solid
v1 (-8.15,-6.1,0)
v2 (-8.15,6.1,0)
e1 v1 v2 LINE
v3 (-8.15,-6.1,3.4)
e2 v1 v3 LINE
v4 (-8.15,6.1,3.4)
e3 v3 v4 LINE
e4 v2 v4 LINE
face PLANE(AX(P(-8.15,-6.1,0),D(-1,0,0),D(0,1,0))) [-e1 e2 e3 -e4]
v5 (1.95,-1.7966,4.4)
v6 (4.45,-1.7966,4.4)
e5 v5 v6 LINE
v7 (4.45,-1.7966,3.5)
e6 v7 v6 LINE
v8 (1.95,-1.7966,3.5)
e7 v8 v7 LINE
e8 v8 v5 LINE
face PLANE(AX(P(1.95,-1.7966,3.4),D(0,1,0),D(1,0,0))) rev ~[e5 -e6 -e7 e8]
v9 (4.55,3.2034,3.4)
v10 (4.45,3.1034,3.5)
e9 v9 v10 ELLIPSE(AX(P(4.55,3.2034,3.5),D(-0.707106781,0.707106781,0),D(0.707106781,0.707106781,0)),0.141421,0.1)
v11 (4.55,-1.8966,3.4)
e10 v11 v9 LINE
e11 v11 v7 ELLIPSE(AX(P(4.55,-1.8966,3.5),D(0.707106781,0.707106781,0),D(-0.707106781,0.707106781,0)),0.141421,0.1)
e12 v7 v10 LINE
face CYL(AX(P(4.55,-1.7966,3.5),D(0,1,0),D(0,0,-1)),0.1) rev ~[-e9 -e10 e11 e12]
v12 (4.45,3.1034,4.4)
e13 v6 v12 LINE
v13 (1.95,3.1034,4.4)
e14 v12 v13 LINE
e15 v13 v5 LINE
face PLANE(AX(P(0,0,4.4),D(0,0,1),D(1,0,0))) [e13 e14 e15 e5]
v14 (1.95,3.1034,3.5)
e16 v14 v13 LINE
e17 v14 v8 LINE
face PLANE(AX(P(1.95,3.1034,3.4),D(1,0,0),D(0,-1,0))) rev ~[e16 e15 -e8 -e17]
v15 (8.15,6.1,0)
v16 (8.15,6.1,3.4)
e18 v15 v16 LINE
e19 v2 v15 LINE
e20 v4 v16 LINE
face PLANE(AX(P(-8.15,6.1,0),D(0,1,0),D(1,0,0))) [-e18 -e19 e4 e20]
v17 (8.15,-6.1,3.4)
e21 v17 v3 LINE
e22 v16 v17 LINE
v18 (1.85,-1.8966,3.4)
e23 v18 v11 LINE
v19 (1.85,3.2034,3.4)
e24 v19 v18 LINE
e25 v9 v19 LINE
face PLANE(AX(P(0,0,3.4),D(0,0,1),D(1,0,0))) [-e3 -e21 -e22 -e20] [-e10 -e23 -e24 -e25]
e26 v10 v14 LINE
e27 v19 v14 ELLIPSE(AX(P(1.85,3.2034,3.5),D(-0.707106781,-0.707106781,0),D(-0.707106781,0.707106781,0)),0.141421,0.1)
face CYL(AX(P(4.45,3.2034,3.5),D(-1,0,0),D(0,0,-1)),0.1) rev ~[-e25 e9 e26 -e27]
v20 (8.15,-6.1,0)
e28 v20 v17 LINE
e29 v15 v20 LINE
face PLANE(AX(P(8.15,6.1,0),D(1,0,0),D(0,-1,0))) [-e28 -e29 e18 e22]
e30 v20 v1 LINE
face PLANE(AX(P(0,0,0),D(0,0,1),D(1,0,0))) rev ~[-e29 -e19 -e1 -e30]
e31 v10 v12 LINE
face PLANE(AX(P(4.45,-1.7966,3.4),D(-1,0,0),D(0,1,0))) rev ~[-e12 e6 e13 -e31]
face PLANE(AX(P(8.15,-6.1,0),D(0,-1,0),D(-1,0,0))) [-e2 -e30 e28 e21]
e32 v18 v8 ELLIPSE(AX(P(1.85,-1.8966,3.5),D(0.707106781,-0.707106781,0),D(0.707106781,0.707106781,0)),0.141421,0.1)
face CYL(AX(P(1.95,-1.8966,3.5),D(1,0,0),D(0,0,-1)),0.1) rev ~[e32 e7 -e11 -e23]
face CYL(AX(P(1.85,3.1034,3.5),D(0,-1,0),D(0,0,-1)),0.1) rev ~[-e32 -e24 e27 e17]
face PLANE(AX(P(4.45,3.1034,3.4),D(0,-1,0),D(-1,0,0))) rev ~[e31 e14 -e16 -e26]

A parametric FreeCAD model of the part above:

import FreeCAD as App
import Part
import Sketcher

V = App.Vector
Q = App.Units.Quantity


def edges_at(feature, points):
    """Names of the edges that pass closest to the given points."""
    edges = feature.Shape.Edges
    near = lambda p: min(range(len(edges)), key=lambda i: edges[i].distToShape(Part.Vertex(*p))[0])
    return sorted({f"Edge{near(p) + 1}" for p in points})

doc = App.newDocument("Part")
body = doc.addObject("PartDesign::Body", "Body")

# Sketch on XY plane
sketch1 = doc.addObject("Sketcher::SketchObject", "Sketch")
body.addObject(sketch1)
sketch1.AttachmentSupport = (doc.XY_Plane, [""])
sketch1.MapMode = "FlatFace"
sketch1.addGeometry([
    Part.LineSegment(V(-8, -6, 0), V(8, -6, 0)),
    Part.LineSegment(V(8, -6, 0), V(8, 6, 0)),
    Part.LineSegment(V(8, 6, 0), V(-8, 6, 0)),
    Part.LineSegment(V(-8, 6, 0), V(-8, -6, 0)),
], False)
sketch1.addConstraint([
    Sketcher.Constraint("Coincident", 0, 2, 1, 1),
    Sketcher.Constraint("Coincident", 1, 2, 2, 1),
    Sketcher.Constraint("Coincident", 2, 2, 3, 1),
    Sketcher.Constraint("Coincident", 3, 2, 0, 1),
    Sketcher.Constraint("Horizontal", 0),
    Sketcher.Constraint("Vertical", 1),
    Sketcher.Constraint("Horizontal", 2),
    Sketcher.Constraint("Vertical", 3),
    Sketcher.Constraint("Symmetric", 0, 2, 2, 2, -1, 1),
    Sketcher.Constraint("DistanceX", 0, 1, 0, 2, Q("16.3 mm")),
    Sketcher.Constraint("DistanceY", 1, 1, 1, 2, Q("12.2 mm")),
])
pad1 = doc.addObject("PartDesign::Pad", "Pad")
body.addObject(pad1)
pad1.Profile = sketch1
pad1.Length = 3.4

# Sketch on XY plane
sketch2 = doc.addObject("Sketcher::SketchObject", "Sketch001")
body.addObject(sketch2)
sketch2.AttachmentSupport = (doc.XY_Plane, [""])
sketch2.MapMode = "FlatFace"
sketch2.AttachmentOffset = App.Placement(V(0, 0, 3.4), App.Rotation())
sketch2.addGeometry([
    Part.LineSegment(V(4.5, -1.8, 0), V(4.5, 3.1, 0)),
    Part.LineSegment(V(4.5, 3.1, 0), V(1.9, 3.1, 0)),
    Part.LineSegment(V(1.9, 3.1, 0), V(1.9, -1.8, 0)),
    Part.LineSegment(V(1.9, -1.8, 0), V(4.5, -1.8, 0)),
], False)
sketch2.addConstraint([
    Sketcher.Constraint("Coincident", 0, 2, 1, 1),
    Sketcher.Constraint("Coincident", 1, 2, 2, 1),
    Sketcher.Constraint("Coincident", 2, 2, 3, 1),
    Sketcher.Constraint("Coincident", 3, 2, 0, 1),
    Sketcher.Constraint("Vertical", 0),
    Sketcher.Constraint("Horizontal", 1),
    Sketcher.Constraint("Vertical", 2),
    Sketcher.Constraint("Horizontal", 3),
    Sketcher.Constraint("DistanceX", 1, 2, 1, 1, Q("2.5 mm")),
    Sketcher.Constraint("DistanceY", 0, 1, 0, 2, Q("4.9 mm")),
    Sketcher.Constraint("DistanceX", -1, 1, 0, 2, Q("4.45 mm")),
    Sketcher.Constraint("DistanceY", -1, 1, 0, 2, Q("3.1034 mm")),
])
pad2 = doc.addObject("PartDesign::Pad", "Pad001")
body.addObject(pad2)
pad2.Profile = sketch2
pad2.Length = 1
doc.recompute()

fillet = doc.addObject("PartDesign::Fillet", "Fillet")
body.addObject(fillet)
fillet.Base = (pad2, edges_at(pad2, [
    (4.45, 0.653, 3.4),
    (3.2, 3.103, 3.4),
    (3.2, -1.797, 3.4),
    (1.95, 0.653, 3.4),
]))
fillet.Radius = 0.1

doc.recompute()
